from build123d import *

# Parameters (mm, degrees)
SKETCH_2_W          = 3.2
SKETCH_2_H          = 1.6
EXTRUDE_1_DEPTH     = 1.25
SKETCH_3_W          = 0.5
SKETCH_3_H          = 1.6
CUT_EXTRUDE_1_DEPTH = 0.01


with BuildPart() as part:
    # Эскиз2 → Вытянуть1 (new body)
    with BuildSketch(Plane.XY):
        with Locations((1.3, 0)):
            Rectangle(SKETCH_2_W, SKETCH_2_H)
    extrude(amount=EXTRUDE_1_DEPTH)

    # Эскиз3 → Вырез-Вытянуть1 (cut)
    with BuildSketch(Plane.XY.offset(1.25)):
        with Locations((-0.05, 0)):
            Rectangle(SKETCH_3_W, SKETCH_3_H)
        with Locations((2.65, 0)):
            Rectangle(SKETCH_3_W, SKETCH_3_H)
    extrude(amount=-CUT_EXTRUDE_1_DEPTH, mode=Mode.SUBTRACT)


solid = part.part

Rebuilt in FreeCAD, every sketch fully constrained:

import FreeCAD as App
import Part
import Sketcher

V = App.Vector

doc = App.newDocument("Part")
params = doc.addObject("Spreadsheet::Sheet", "Params")
for row, (alias, value) in enumerate([
    ("sketch1_width", "3.2 mm"),
    ("sketch1_height", "1.6 mm"),
    ("pad1_length", "1.25 mm"),
    ("sketch2_width", "0.5 mm"),
    ("sketch2_height", "1.6 mm"),
    ("pocket1_length", "0.01 mm"),
], start=1):
    params.set(f"A{row}", alias)
    params.set(f"B{row}", "=" + value)
    params.setAlias(f"B{row}", alias)

body = doc.addObject("PartDesign::Body", "Body")

# Sketch on XY plane
sketch1 = body.newObject("Sketcher::SketchObject", "Sketch")
sketch1.AttachmentSupport = (doc.getObject("XY_Plane"), [""])
sketch1.MapMode = "FlatFace"
sketch1.addGeometry([
    Part.LineSegment(V(-0.3, 0.8, 0), V(-0.3, -0.8, 0)),
    Part.LineSegment(V(-0.3, -0.8, 0), V(2.9, -0.8, 0)),
    Part.LineSegment(V(2.9, -0.8, 0), V(2.9, 0.8, 0)),
    Part.LineSegment(V(2.9, 0.8, 0), V(-0.3, 0.8, 0)),
], False)
sketch1.addConstraint([
    Sketcher.Constraint("Coincident", 0, 2, 1, 1),
    Sketcher.Constraint("Coincident", 1, 2, 2, 1),
    Sketcher.Constraint("Coincident", 2, 2, 3, 1),
    Sketcher.Constraint("Coincident", 3, 2, 0, 1),
    Sketcher.Constraint("Vertical", 0),
    Sketcher.Constraint("Horizontal", 1),
    Sketcher.Constraint("Vertical", 2),
    Sketcher.Constraint("Horizontal", 3),
    Sketcher.Constraint("DistanceX", 1, 1, 1, 2, 3.2),
    Sketcher.Constraint("DistanceY", 0, 2, 0, 1, 1.6),
    Sketcher.Constraint("DistanceX", 0, 2, -1, 1, 0.3),
    Sketcher.Constraint("DistanceY", 0, 2, -1, 1, 0.8),
])
sketch1.setExpression("Constraints[8]", "Params.sketch1_width")
sketch1.setExpression("Constraints[9]", "Params.sketch1_height")
pad1 = body.newObject("PartDesign::Pad", "Pad")
pad1.Profile = sketch1
pad1.setExpression("Length", "Params.pad1_length")

# Sketch on XY plane
sketch2 = body.newObject("Sketcher::SketchObject", "Sketch001")
sketch2.AttachmentSupport = (doc.getObject("XY_Plane"), [""])
sketch2.MapMode = "FlatFace"
sketch2.AttachmentOffset = App.Placement(V(0, 0, 1.25), App.Rotation())
sketch2.addGeometry([
    Part.LineSegment(V(-0.3, 0.8, 0), V(-0.3, -0.8, 0)),  # 0
    Part.LineSegment(V(-0.3, -0.8, 0), V(0.2, -0.8, 0)),  # 1
    Part.LineSegment(V(0.2, -0.8, 0), V(0.2, 0.8, 0)),  # 2
    Part.LineSegment(V(0.2, 0.8, 0), V(-0.3, 0.8, 0)),  # 3
    Part.LineSegment(V(2.4, 0.8, 0), V(2.4, -0.8, 0)),  # 4
    Part.LineSegment(V(2.4, -0.8, 0), V(2.9, -0.8, 0)),  # 5
    Part.LineSegment(V(2.9, -0.8, 0), V(2.9, 0.8, 0)),  # 6
    Part.LineSegment(V(2.9, 0.8, 0), V(2.4, 0.8, 0)),  # 7
], False)
sketch2.addConstraint([
    Sketcher.Constraint("Coincident", 0, 2, 1, 1),
    Sketcher.Constraint("Coincident", 1, 2, 2, 1),
    Sketcher.Constraint("Coincident", 2, 2, 3, 1),
    Sketcher.Constraint("Coincident", 3, 2, 0, 1),
    Sketcher.Constraint("Coincident", 4, 2, 5, 1),
    Sketcher.Constraint("Coincident", 5, 2, 6, 1),
    Sketcher.Constraint("Coincident", 6, 2, 7, 1),
    Sketcher.Constraint("Coincident", 7, 2, 4, 1),
    Sketcher.Constraint("Vertical", 0),
    Sketcher.Constraint("Horizontal", 1),
    Sketcher.Constraint("Vertical", 2),
    Sketcher.Constraint("Horizontal", 3),
    Sketcher.Constraint("Vertical", 4),
    Sketcher.Constraint("Horizontal", 5),
    Sketcher.Constraint("Vertical", 6),
    Sketcher.Constraint("Horizontal", 7),
    Sketcher.Constraint("Horizontal", 1, 2, 4, 2),
    Sketcher.Constraint("Horizontal", 3, 2, 6, 2),
    Sketcher.Constraint("Equal", 3, 5),
    Sketcher.Constraint("DistanceX", 1, 1, 1, 2, 0.5),
    Sketcher.Constraint("DistanceY", 0, 2, 0, 1, 1.6),
    Sketcher.Constraint("DistanceX", 0, 2, -1, 1, 0.3),
    Sketcher.Constraint("DistanceY", 0, 2, -1, 1, 0.8),
    Sketcher.Constraint("DistanceX", -1, 1, 4, 2, 2.4),
])
sketch2.setExpression("Constraints[19]", "Params.sketch2_width")
sketch2.setExpression("Constraints[20]", "Params.sketch2_height")
pocket1 = body.newObject("PartDesign::Pocket", "Pocket")
pocket1.Profile = sketch2
pocket1.setExpression("Length", "Params.pocket1_length")

doc.recompute()
